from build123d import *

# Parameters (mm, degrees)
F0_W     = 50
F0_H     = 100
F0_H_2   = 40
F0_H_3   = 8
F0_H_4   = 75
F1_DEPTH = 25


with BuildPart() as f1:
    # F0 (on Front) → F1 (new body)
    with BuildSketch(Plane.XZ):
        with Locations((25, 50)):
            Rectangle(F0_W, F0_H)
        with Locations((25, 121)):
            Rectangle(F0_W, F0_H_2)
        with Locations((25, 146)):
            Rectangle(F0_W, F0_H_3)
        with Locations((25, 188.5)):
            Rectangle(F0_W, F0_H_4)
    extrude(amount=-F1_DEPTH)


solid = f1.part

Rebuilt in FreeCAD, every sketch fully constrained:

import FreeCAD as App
import Part
import Sketcher
from FreeCAD import Vector
Q = App.Units.Quantity

doc = App.newDocument("Part")
body = doc.addObject("PartDesign::Body", "Body")
body.AllowCompound = True

sketch1 = body.newObject("Sketcher::SketchObject", "Sketch")
sketch1.AttachmentSupport = (doc.getObject("XZ_Plane"), [""])
sketch1.MapMode = "FlatFace"
sketch1.addGeometry(Part.LineSegment(Vector(0, 100, 0), Vector(0, 0, 0)), False)
sketch1.addGeometry(Part.LineSegment(Vector(0, 0, 0), Vector(50, 0, 0)), False)
sketch1.addGeometry(Part.LineSegment(Vector(50, 0, 0), Vector(50, 100, 0)), False)
sketch1.addGeometry(Part.LineSegment(Vector(50, 100, 0), Vector(0, 100, 0)), False)
sketch1.addGeometry(Part.LineSegment(Vector(0, 141, 0), Vector(0, 101, 0)), False)
sketch1.addGeometry(Part.LineSegment(Vector(0, 101, 0), Vector(50, 101, 0)), False)
sketch1.addGeometry(Part.LineSegment(Vector(50, 101, 0), Vector(50, 141, 0)), False)
sketch1.addGeometry(Part.LineSegment(Vector(50, 141, 0), Vector(0, 141, 0)), False)
sketch1.addGeometry(Part.LineSegment(Vector(0, 150, 0), Vector(0, 142, 0)), False)
sketch1.addGeometry(Part.LineSegment(Vector(0, 142, 0), Vector(50, 142, 0)), False)
sketch1.addGeometry(Part.LineSegment(Vector(50, 142, 0), Vector(50, 150, 0)), False)
sketch1.addGeometry(Part.LineSegment(Vector(50, 150, 0), Vector(0, 150, 0)), False)
sketch1.addGeometry(Part.LineSegment(Vector(0, 226, 0), Vector(0, 151, 0)), False)
sketch1.addGeometry(Part.LineSegment(Vector(0, 151, 0), Vector(50, 151, 0)), False)
sketch1.addGeometry(Part.LineSegment(Vector(50, 151, 0), Vector(50, 226, 0)), False)
sketch1.addGeometry(Part.LineSegment(Vector(50, 226, 0), Vector(0, 226, 0)), False)
sketch1.addConstraint(Sketcher.Constraint("Coincident", 0, 2, 1, 1))
sketch1.addConstraint(Sketcher.Constraint("Coincident", 1, 2, 2, 1))
sketch1.addConstraint(Sketcher.Constraint("Coincident", 2, 2, 3, 1))
sketch1.addConstraint(Sketcher.Constraint("Coincident", 3, 2, 0, 1))
sketch1.addConstraint(Sketcher.Constraint("Coincident", 4, 2, 5, 1))
sketch1.addConstraint(Sketcher.Constraint("Coincident", 5, 2, 6, 1))
sketch1.addConstraint(Sketcher.Constraint("Coincident", 6, 2, 7, 1))
sketch1.addConstraint(Sketcher.Constraint("Coincident", 7, 2, 4, 1))
sketch1.addConstraint(Sketcher.Constraint("Coincident", 8, 2, 9, 1))
sketch1.addConstraint(Sketcher.Constraint("Coincident", 9, 2, 10, 1))
sketch1.addConstraint(Sketcher.Constraint("Coincident", 10, 2, 11, 1))
sketch1.addConstraint(Sketcher.Constraint("Coincident", 11, 2, 8, 1))
sketch1.addConstraint(Sketcher.Constraint("Coincident", 12, 2, 13, 1))
sketch1.addConstraint(Sketcher.Constraint("Coincident", 13, 2, 14, 1))
sketch1.addConstraint(Sketcher.Constraint("Coincident", 14, 2, 15, 1))
sketch1.addConstraint(Sketcher.Constraint("Coincident", 15, 2, 12, 1))
sketch1.addConstraint(Sketcher.Constraint("Vertical", 0))
sketch1.addConstraint(Sketcher.Constraint("Horizontal", 1))
sketch1.addConstraint(Sketcher.Constraint("Vertical", 2))
sketch1.addConstraint(Sketcher.Constraint("Horizontal", 3))
sketch1.addConstraint(Sketcher.Constraint("Vertical", 4))
sketch1.addConstraint(Sketcher.Constraint("Horizontal", 5))
sketch1.addConstraint(Sketcher.Constraint("Vertical", 6))
sketch1.addConstraint(Sketcher.Constraint("Horizontal", 7))
sketch1.addConstraint(Sketcher.Constraint("Vertical", 8))
sketch1.addConstraint(Sketcher.Constraint("Horizontal", 9))
sketch1.addConstraint(Sketcher.Constraint("Vertical", 10))
sketch1.addConstraint(Sketcher.Constraint("Horizontal", 11))
sketch1.addConstraint(Sketcher.Constraint("Vertical", 12))
sketch1.addConstraint(Sketcher.Constraint("Horizontal", 13))
sketch1.addConstraint(Sketcher.Constraint("Vertical", 14))
sketch1.addConstraint(Sketcher.Constraint("Horizontal", 15))
sketch1.addConstraint(Sketcher.Constraint("Coincident", 0, 2, -1, 1))
sketch1.addConstraint(Sketcher.Constraint("PointOnObject", 4, 2, -2))
sketch1.addConstraint(Sketcher.Constraint("PointOnObject", 8, 2, -2))
sketch1.addConstraint(Sketcher.Constraint("PointOnObject", 12, 2, -2))
sketch1.addConstraint(Sketcher.Constraint("Vertical", 2, 2, 5, 2))
sketch1.addConstraint(Sketcher.Constraint("Vertical", 6, 2, 9, 2))
sketch1.addConstraint(Sketcher.Constraint("Vertical", 10, 2, 13, 2))
sketch1.addConstraint(Sketcher.Constraint("DistanceX", 1, 1, 1, 2, Q("50 mm")))
sketch1.addConstraint(Sketcher.Constraint("DistanceY", 0, 2, 0, 1, Q("100 mm")))
sketch1.addConstraint(Sketcher.Constraint("DistanceY", 4, 2, 4, 1, Q("40 mm")))
sketch1.addConstraint(Sketcher.Constraint("DistanceY", 8, 2, 8, 1, Q("8 mm")))
sketch1.addConstraint(Sketcher.Constraint("DistanceY", 12, 2, 12, 1, Q("75 mm")))
sketch1.addConstraint(Sketcher.Constraint("DistanceY", -1, 1, 4, 2, Q("101 mm")))
sketch1.addConstraint(Sketcher.Constraint("DistanceY", -1, 1, 8, 2, Q("142 mm")))
sketch1.addConstraint(Sketcher.Constraint("DistanceY", -1, 1, 12, 2, Q("151 mm")))
pad1 = body.newObject("PartDesign::Pad", "Pad")
pad1.Profile = sketch1
pad1.Length = 25
pad1.Reversed = True

doc.recompute()
